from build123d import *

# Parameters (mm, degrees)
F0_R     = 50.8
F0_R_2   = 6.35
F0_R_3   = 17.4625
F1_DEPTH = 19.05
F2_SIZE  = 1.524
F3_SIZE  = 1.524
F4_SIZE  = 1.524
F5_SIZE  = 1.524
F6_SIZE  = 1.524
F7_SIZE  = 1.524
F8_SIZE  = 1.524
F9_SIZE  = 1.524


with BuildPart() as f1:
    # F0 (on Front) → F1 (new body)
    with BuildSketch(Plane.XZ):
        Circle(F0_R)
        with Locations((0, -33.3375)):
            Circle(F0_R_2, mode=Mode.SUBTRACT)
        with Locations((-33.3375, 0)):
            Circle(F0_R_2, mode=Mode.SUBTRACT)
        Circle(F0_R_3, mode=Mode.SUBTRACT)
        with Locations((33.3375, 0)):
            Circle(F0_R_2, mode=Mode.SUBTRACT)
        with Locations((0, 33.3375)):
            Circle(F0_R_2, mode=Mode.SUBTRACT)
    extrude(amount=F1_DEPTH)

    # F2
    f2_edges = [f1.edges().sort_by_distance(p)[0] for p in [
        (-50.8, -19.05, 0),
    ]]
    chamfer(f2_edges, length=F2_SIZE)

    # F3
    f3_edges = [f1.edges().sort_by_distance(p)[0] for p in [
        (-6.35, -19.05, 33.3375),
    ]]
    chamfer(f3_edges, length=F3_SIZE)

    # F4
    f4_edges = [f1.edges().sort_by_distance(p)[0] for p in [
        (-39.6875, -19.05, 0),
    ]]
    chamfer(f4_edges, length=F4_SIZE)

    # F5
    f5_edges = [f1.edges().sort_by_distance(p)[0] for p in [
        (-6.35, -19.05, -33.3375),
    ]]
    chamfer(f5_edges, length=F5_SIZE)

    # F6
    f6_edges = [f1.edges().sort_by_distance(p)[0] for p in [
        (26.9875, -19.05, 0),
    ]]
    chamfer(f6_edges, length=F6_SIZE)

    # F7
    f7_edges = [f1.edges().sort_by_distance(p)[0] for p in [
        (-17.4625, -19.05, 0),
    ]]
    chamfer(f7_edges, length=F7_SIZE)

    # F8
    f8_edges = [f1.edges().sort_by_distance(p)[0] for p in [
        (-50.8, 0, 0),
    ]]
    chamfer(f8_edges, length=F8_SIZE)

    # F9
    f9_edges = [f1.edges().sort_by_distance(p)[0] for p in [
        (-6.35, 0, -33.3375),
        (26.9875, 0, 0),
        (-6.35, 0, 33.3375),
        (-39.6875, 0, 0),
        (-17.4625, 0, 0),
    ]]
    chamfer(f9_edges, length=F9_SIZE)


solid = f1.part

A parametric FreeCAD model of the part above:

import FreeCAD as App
import Part
import Sketcher

V = App.Vector
Q = App.Units.Quantity


def edges_at(feature, points):
    """Names of the edges that pass closest to the given points."""
    edges = feature.Shape.Edges
    near = lambda p: min(range(len(edges)), key=lambda i: edges[i].distToShape(Part.Vertex(*p))[0])
    return sorted({f"Edge{near(p) + 1}" for p in points})

doc = App.newDocument("Part")
params = doc.addObject("Spreadsheet::Sheet", "Params")
for row, (alias, value) in enumerate([
    ("sketch1_diameter", "4 in"),
    ("sketch1_diameter2", "0.5 in"),
    ("sketch1_diameter3", "1.375 in"),
    ("pad1_length", "0.75 in"),
    ("chamfer_size", "0.06 in"),
    ("chamfer2_size", "0.06 in"),
    ("chamfer3_size", "0.06 in"),
    ("chamfer4_size", "0.06 in"),
    ("chamfer5_size", "0.06 in"),
    ("chamfer6_size", "0.06 in"),
    ("chamfer7_size", "0.06 in"),
    ("chamfer8_size", "0.06 in"),
], start=1):
    params.set(f"A{row}", alias)
    params.set(f"B{row}", "=" + value)
    params.setAlias(f"B{row}", alias)

body = doc.addObject("PartDesign::Body", "Body")

# Sketch on XZ plane
sketch1 = body.newObject("Sketcher::SketchObject", "Sketch")
sketch1.AttachmentSupport = (doc.getObject("XZ_Plane"), [""])
sketch1.MapMode = "FlatFace"
sketch1.addGeometry([
    Part.Circle(V(0, 0, 0), V(0, 0, 1), 51),  # 0
    Part.Circle(V(0, -33, 0), V(0, 0, 1), 6),  # 1
    Part.Circle(V(-33, 0, 0), V(0, 0, 1), 6),  # 2
    Part.Circle(V(0, 0, 0), V(0, 0, 1), 17),  # 3
    Part.Circle(V(33, 0, 0), V(0, 0, 1), 6),  # 4
    Part.Circle(V(0, 33, 0), V(0, 0, 1), 6),  # 5
], False)
sketch1.addConstraint([
    Sketcher.Constraint("Coincident", 0, 3, -1, 1),
    Sketcher.Constraint("Coincident", 3, 3, -1, 1),
    Sketcher.Constraint("Equal", 1, 2),
    Sketcher.Constraint("Equal", 2, 4),
    Sketcher.Constraint("Equal", 4, 5),
    Sketcher.Constraint("Symmetric", 2, 3, 4, 3, -1, 1),
    Sketcher.Constraint("Symmetric", 1, 3, 5, 3, -1, 1),
    Sketcher.Constraint("PointOnObject", 1, 3, -2),
    Sketcher.Constraint("PointOnObject", 2, 3, -1),
    Sketcher.Constraint("Diameter", 0, Q("4 in")),
    Sketcher.Constraint("Diameter", 1, Q("0.5 in")),
    Sketcher.Constraint("Diameter", 3, Q("1.375 in")),
    Sketcher.Constraint("DistanceY", 1, 3, -1, 1, Q("1.3125 in")),
    Sketcher.Constraint("DistanceX", 2, 3, -1, 1, Q("1.3125 in")),
])
sketch1.setExpression("Constraints[9]", "Params.sketch1_diameter")
sketch1.setExpression("Constraints[10]", "Params.sketch1_diameter2")
sketch1.setExpression("Constraints[11]", "Params.sketch1_diameter3")
pad1 = body.newObject("PartDesign::Pad", "Pad")
pad1.Profile = sketch1
pad1.setExpression("Length", "Params.pad1_length")
doc.recompute()

chamfer = body.newObject("PartDesign::Chamfer", "Chamfer")
chamfer.Base = (pad1, edges_at(pad1, [(-50.8, -19.05, 0)]))
chamfer.setExpression("Size", "Params.chamfer_size")
doc.recompute()

chamfer2 = body.newObject("PartDesign::Chamfer", "Chamfer001")
chamfer2.Base = (chamfer, edges_at(chamfer, [(-6.35, -19.05, 33.337)]))
chamfer2.setExpression("Size", "Params.chamfer2_size")
doc.recompute()

chamfer3 = body.newObject("PartDesign::Chamfer", "Chamfer002")
chamfer3.Base = (chamfer2, edges_at(chamfer2, [(-39.688, -19.05, 0)]))
chamfer3.setExpression("Size", "Params.chamfer3_size")
doc.recompute()

chamfer4 = body.newObject("PartDesign::Chamfer", "Chamfer003")
chamfer4.Base = (chamfer3, edges_at(chamfer3, [(-6.35, -19.05, -33.337)]))
chamfer4.setExpression("Size", "Params.chamfer4_size")
doc.recompute()

chamfer5 = body.newObject("PartDesign::Chamfer", "Chamfer004")
chamfer5.Base = (chamfer4, edges_at(chamfer4, [(26.988, -19.05, 0)]))
chamfer5.setExpression("Size", "Params.chamfer5_size")
doc.recompute()

chamfer6 = body.newObject("PartDesign::Chamfer", "Chamfer005")
chamfer6.Base = (chamfer5, edges_at(chamfer5, [(-17.462, -19.05, 0)]))
chamfer6.setExpression("Size", "Params.chamfer6_size")
doc.recompute()

chamfer7 = body.newObject("PartDesign::Chamfer", "Chamfer006")
chamfer7.Base = (chamfer6, edges_at(chamfer6, [(-50.8, 0, 0)]))
chamfer7.setExpression("Size", "Params.chamfer7_size")
doc.recompute()

chamfer8 = body.newObject("PartDesign::Chamfer", "Chamfer007")
chamfer8.Base = (chamfer7, edges_at(chamfer7, [
    (-6.35, 0, -33.337),
    (26.988, 0, 0),
    (-6.35, 0, 33.337),
    (-39.688, 0, 0),
    (-17.462, 0, 0),
]))
chamfer8.setExpression("Size", "Params.chamfer8_size")

doc.recompute()
